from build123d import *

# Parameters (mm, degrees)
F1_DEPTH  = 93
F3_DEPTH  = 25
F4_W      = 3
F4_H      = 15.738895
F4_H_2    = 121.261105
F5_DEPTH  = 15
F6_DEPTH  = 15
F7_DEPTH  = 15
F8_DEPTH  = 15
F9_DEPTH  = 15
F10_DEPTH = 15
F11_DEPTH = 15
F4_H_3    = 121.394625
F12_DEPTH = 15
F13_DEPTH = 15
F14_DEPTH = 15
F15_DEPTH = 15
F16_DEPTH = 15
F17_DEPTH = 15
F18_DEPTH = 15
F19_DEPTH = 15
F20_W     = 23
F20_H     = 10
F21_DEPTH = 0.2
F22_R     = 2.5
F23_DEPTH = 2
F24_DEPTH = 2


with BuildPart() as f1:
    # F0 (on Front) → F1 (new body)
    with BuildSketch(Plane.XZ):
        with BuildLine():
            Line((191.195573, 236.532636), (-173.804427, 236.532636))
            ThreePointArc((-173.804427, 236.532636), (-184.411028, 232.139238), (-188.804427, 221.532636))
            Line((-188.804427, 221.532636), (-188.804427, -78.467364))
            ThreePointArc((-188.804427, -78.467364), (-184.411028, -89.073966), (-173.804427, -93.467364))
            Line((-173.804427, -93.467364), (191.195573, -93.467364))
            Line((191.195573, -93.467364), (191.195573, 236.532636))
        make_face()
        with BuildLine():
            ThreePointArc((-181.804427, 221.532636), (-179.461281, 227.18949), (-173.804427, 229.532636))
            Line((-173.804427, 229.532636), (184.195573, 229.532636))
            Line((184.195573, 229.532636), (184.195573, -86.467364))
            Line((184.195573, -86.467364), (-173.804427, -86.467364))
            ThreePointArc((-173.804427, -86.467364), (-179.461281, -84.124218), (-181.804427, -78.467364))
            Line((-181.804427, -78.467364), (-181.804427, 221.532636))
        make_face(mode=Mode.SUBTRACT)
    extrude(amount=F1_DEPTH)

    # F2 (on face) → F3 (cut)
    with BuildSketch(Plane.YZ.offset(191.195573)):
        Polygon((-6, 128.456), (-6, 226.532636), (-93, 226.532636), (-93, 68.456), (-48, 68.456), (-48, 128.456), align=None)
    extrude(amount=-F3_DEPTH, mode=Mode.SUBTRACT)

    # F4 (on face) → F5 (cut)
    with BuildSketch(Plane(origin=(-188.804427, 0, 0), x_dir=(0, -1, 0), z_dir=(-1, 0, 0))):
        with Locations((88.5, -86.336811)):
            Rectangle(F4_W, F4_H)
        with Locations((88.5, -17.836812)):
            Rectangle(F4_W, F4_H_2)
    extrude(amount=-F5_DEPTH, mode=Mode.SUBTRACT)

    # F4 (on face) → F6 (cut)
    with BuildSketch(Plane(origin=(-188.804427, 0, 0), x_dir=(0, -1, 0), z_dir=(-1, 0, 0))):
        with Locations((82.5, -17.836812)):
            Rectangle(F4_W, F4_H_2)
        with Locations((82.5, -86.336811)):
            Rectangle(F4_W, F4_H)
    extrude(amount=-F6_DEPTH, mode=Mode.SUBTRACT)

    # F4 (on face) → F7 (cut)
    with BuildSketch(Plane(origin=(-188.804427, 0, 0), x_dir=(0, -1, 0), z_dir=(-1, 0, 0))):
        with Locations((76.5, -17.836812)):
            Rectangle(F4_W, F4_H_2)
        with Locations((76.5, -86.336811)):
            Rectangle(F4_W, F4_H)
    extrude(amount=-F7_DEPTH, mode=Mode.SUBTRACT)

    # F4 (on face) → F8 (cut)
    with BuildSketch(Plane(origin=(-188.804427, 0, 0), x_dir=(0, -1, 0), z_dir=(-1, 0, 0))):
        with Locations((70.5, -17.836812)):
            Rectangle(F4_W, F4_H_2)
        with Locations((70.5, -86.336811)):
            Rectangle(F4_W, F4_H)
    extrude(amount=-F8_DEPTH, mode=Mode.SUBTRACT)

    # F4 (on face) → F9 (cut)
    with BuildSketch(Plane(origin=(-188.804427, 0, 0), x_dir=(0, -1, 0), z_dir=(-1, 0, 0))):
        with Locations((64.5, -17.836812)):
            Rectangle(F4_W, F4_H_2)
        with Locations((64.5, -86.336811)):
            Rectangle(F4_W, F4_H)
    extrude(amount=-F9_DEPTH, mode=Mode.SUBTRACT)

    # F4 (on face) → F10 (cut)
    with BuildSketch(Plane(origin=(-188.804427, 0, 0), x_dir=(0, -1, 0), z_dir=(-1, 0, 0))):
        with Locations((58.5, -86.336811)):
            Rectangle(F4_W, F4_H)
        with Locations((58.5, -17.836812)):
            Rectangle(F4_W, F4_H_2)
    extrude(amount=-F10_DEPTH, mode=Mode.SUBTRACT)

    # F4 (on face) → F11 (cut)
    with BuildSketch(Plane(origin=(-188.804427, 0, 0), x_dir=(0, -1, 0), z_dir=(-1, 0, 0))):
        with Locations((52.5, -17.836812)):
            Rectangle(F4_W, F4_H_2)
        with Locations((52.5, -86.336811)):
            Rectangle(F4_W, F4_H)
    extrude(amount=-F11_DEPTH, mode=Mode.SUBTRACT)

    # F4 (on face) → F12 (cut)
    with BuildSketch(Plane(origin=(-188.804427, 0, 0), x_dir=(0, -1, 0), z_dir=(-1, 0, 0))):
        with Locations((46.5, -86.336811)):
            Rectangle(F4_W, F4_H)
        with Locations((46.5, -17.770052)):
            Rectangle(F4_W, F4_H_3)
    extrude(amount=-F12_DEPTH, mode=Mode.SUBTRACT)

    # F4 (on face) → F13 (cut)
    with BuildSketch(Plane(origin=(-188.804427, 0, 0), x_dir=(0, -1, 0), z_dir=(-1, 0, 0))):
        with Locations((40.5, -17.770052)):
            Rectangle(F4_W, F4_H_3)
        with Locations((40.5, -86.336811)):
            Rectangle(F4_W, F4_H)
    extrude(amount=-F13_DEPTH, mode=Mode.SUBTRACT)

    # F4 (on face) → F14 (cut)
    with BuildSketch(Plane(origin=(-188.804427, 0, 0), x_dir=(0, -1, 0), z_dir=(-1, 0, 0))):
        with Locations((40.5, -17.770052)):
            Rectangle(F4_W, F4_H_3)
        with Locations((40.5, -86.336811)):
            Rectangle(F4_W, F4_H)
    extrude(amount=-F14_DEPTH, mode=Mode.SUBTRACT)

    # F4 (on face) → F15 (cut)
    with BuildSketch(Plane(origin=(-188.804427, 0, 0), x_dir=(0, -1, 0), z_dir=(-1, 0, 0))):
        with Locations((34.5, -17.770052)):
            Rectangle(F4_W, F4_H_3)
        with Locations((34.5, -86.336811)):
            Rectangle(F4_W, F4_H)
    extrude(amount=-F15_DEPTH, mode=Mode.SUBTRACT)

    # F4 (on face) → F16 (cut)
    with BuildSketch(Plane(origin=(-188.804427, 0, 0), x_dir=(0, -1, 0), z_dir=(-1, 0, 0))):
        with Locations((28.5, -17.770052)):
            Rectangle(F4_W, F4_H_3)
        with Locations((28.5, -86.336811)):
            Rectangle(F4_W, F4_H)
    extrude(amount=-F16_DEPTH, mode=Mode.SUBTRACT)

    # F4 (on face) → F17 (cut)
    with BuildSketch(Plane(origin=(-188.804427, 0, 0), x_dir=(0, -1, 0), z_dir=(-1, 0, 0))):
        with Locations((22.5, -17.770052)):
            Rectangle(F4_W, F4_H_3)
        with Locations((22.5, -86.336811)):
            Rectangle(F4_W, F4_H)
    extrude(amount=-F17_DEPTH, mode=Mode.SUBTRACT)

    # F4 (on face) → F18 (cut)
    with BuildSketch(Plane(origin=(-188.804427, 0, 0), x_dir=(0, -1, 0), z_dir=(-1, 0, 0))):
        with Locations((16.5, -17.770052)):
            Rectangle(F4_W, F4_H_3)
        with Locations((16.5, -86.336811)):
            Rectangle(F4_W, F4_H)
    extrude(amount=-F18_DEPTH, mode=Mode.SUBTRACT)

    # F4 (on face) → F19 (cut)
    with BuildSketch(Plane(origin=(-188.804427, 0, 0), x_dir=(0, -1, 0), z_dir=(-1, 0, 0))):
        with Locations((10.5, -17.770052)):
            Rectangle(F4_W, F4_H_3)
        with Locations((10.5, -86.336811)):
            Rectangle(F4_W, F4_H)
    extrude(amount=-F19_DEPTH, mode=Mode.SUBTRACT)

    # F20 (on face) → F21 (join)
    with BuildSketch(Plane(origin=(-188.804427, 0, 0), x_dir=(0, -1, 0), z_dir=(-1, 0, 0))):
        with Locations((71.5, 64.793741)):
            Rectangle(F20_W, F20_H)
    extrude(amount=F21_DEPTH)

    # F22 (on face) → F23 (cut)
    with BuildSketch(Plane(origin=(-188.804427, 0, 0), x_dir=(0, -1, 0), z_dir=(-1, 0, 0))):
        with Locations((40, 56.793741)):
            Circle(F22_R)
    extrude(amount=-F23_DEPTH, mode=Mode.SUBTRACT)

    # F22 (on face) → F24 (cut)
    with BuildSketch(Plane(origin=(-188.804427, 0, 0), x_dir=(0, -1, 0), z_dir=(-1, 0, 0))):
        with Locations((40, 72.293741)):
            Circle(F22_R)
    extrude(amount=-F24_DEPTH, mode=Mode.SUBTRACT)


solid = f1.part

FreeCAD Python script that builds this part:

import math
import FreeCAD as App
import Part
import Sketcher
from FreeCAD import Vector

doc = App.newDocument("Part")
body = doc.addObject("PartDesign::Body", "Body")

sketch1 = body.newObject("Sketcher::SketchObject", "Sketch")
sketch1.AttachmentSupport = (doc.getObject("XZ_Plane"), [""])
sketch1.MapMode = "FlatFace"
sketch1.addGeometry(Part.LineSegment(Vector(191, 237, 0), Vector(-174, 237, 0)), False)
sketch1.addGeometry(Part.ArcOfCircle(Part.Circle(Vector(-174, 222, 0), Vector(0, 0, 1), 15), math.radians(90), math.radians(180)), False)
sketch1.addGeometry(Part.LineSegment(Vector(-189, 222, 0), Vector(-189, -78, 0)), False)
sketch1.addGeometry(Part.ArcOfCircle(Part.Circle(Vector(-174, -78, 0), Vector(0, 0, 1), 15), math.radians(-180), math.radians(-90)), False)
sketch1.addGeometry(Part.LineSegment(Vector(-174, -93, 0), Vector(191, -93, 0)), False)
sketch1.addGeometry(Part.LineSegment(Vector(191, -93, 0), Vector(191, 237, 0)), False)
sketch1.addGeometry(Part.LineSegment(Vector(-182, -78, 0), Vector(-182, 222, 0)), False)
sketch1.addGeometry(Part.ArcOfCircle(Part.Circle(Vector(-174, 222, 0), Vector(0, 0, 1), 8), math.radians(90), math.radians(180)), False)
sketch1.addGeometry(Part.LineSegment(Vector(-174, 230, 0), Vector(184, 230, 0)), False)
sketch1.addGeometry(Part.LineSegment(Vector(184, 230, 0), Vector(184, -86, 0)), False)
sketch1.addGeometry(Part.LineSegment(Vector(184, -86, 0), Vector(-174, -86, 0)), False)
sketch1.addGeometry(Part.ArcOfCircle(Part.Circle(Vector(-174, -78, 0), Vector(0, 0, 1), 8), math.radians(-180), math.radians(-90)), False)
sketch1.addConstraint(Sketcher.Constraint("Tangent", 0, 2, 1, 1))
sketch1.addConstraint(Sketcher.Constraint("Tangent", 1, 2, 2, 1))
sketch1.addConstraint(Sketcher.Constraint("Tangent", 2, 2, 3, 1))
sketch1.addConstraint(Sketcher.Constraint("Tangent", 3, 2, 4, 1))
sketch1.addConstraint(Sketcher.Constraint("Coincident", 4, 2, 5, 1))
sketch1.addConstraint(Sketcher.Constraint("Coincident", 5, 2, 0, 1))
sketch1.addConstraint(Sketcher.Constraint("Tangent", 6, 2, 7, 2))
sketch1.addConstraint(Sketcher.Constraint("Tangent", 7, 1, 8, 1))
sketch1.addConstraint(Sketcher.Constraint("Coincident", 8, 2, 9, 1))
sketch1.addConstraint(Sketcher.Constraint("Coincident", 9, 2, 10, 1))
sketch1.addConstraint(Sketcher.Constraint("Tangent", 10, 2, 11, 2))
sketch1.addConstraint(Sketcher.Constraint("Tangent", 11, 1, 6, 1))
sketch1.addConstraint(Sketcher.Constraint("Horizontal", 0))
sketch1.addConstraint(Sketcher.Constraint("Vertical", 2))
sketch1.addConstraint(Sketcher.Constraint("Horizontal", 4))
sketch1.addConstraint(Sketcher.Constraint("Vertical", 5))
sketch1.addConstraint(Sketcher.Constraint("Vertical", 6))
sketch1.addConstraint(Sketcher.Constraint("Horizontal", 8))
sketch1.addConstraint(Sketcher.Constraint("Vertical", 9))
sketch1.addConstraint(Sketcher.Constraint("Horizontal", 10))
sketch1.addConstraint(Sketcher.Constraint("Coincident", 7, 3, 1, 3))
sketch1.addConstraint(Sketcher.Constraint("Coincident", 11, 3, 3, 3))
sketch1.addConstraint(Sketcher.Constraint("Equal", 1, 3))
sketch1.addConstraint(Sketcher.Constraint("Radius", 1, 15.000001))
sketch1.addConstraint(Sketcher.Constraint("Radius", 7, 8.000001))
sketch1.addConstraint(Sketcher.Constraint("DistanceX", 0, 2, 0, 1, 365.0))
sketch1.addConstraint(Sketcher.Constraint("DistanceX", 8, 1, 8, 2, 358.0))
sketch1.addConstraint(Sketcher.Constraint("DistanceY", 2, 2, 2, 1, 300.0))
sketch1.addConstraint(Sketcher.Constraint("DistanceX", 1, 3, -1, 1, 173.804426))
sketch1.addConstraint(Sketcher.Constraint("DistanceY", -1, 1, 1, 3, 221.532635))
pad1 = body.newObject("PartDesign::Pad", "Pad")
pad1.Profile = sketch1
pad1.Length = 93

sketch2 = body.newObject("Sketcher::SketchObject", "Sketch001")
sketch2.AttachmentSupport = (doc.getObject("YZ_Plane"), [""])
sketch2.MapMode = "FlatFace"
sketch2.AttachmentOffset = App.Placement(Vector(0, 0, 191.195573), App.Rotation())
sketch2.addGeometry(Part.LineSegment(Vector(-6, 128, 0), Vector(-6, 227, 0)), False)
sketch2.addGeometry(Part.LineSegment(Vector(-6, 227, 0), Vector(-93, 227, 0)), False)
sketch2.addGeometry(Part.LineSegment(Vector(-93, 227, 0), Vector(-93, 68, 0)), False)
sketch2.addGeometry(Part.LineSegment(Vector(-93, 68, 0), Vector(-48, 68, 0)), False)
sketch2.addGeometry(Part.LineSegment(Vector(-48, 68, 0), Vector(-48, 128, 0)), False)
sketch2.addGeometry(Part.LineSegment(Vector(-48, 128, 0), Vector(-6, 128, 0)), False)
sketch2.addConstraint(Sketcher.Constraint("Coincident", 0, 2, 1, 1))
sketch2.addConstraint(Sketcher.Constraint("Coincident", 1, 2, 2, 1))
sketch2.addConstraint(Sketcher.Constraint("Coincident", 2, 2, 3, 1))
sketch2.addConstraint(Sketcher.Constraint("Coincident", 3, 2, 4, 1))
sketch2.addConstraint(Sketcher.Constraint("Coincident", 4, 2, 5, 1))
sketch2.addConstraint(Sketcher.Constraint("Coincident", 5, 2, 0, 1))
sketch2.addConstraint(Sketcher.Constraint("Vertical", 0))
sketch2.addConstraint(Sketcher.Constraint("Horizontal", 1))
sketch2.addConstraint(Sketcher.Constraint("Vertical", 2))
sketch2.addConstraint(Sketcher.Constraint("Horizontal", 3))
sketch2.addConstraint(Sketcher.Constraint("Vertical", 4))
sketch2.addConstraint(Sketcher.Constraint("Horizontal", 5))
sketch2.addConstraint(Sketcher.Constraint("DistanceX", 1, 2, 1, 1, 87.0))
sketch2.addConstraint(Sketcher.Constraint("DistanceX", 3, 1, 3, 2, 45.0))
sketch2.addConstraint(Sketcher.Constraint("DistanceY", 4, 1, 4, 2, 60.0))
sketch2.addConstraint(Sketcher.Constraint("DistanceX", 0, 2, -1, 1, 6.0))
sketch2.addConstraint(Sketcher.Constraint("DistanceY", -1, 1, 2, 2, 68.456))
sketch2.addConstraint(Sketcher.Constraint("DistanceY", 0, 1, 0, 2, 98.076636))
pocket1 = body.newObject("PartDesign::Pocket", "Pocket")
pocket1.Profile = sketch2
pocket1.Length = 25

sketch3 = body.newObject("Sketcher::SketchObject", "Sketch002")
sketch3.AttachmentSupport = (doc.getObject("YZ_Plane"), [""])
sketch3.MapMode = "FlatFace"
sketch3.AttachmentOffset = App.Placement(Vector(0, 0, -188.804427), App.Rotation())
sketch3.addGeometry(Part.LineSegment(Vector(-87, -94.2, 0), Vector(-90, -94.2, 0)), False)
sketch3.addGeometry(Part.LineSegment(Vector(-90, -94.2, 0), Vector(-90, 42.8, 0)), False)
sketch3.addGeometry(Part.LineSegment(Vector(-90, 42.8, 0), Vector(-87, 42.8, 0)), False)
sketch3.addGeometry(Part.LineSegment(Vector(-87, 42.8, 0), Vector(-87, -94.2, 0)), False)
sketch3.addConstraint(Sketcher.Constraint("Coincident", 0, 2, 1, 1))
sketch3.addConstraint(Sketcher.Constraint("Coincident", 1, 2, 2, 1))
sketch3.addConstraint(Sketcher.Constraint("Coincident", 2, 2, 3, 1))
sketch3.addConstraint(Sketcher.Constraint("Coincident", 3, 2, 0, 1))
sketch3.addConstraint(Sketcher.Constraint("Horizontal", 0))
sketch3.addConstraint(Sketcher.Constraint("Vertical", 1))
sketch3.addConstraint(Sketcher.Constraint("Horizontal", 2))
sketch3.addConstraint(Sketcher.Constraint("Vertical", 3))
sketch3.addConstraint(Sketcher.Constraint("DistanceX", 0, 2, 0, 1, 3.0))
sketch3.addConstraint(Sketcher.Constraint("DistanceY", 1, 1, 1, 2, 136.999999))
sketch3.addConstraint(Sketcher.Constraint("DistanceX", 0, 2, -1, 1, 90.0))
sketch3.addConstraint(Sketcher.Constraint("DistanceY", 0, 2, -1, 1, 94.206259))
pocket2 = body.newObject("PartDesign::Pocket", "Pocket001")
pocket2.Profile = sketch3
pocket2.Length = 15
pocket2.Reversed = True

sketch4 = body.newObject("Sketcher::SketchObject", "Sketch003")
sketch4.AttachmentSupport = (doc.getObject("YZ_Plane"), [""])
sketch4.MapMode = "FlatFace"
sketch4.AttachmentOffset = App.Placement(Vector(0, 0, -188.804427), App.Rotation())
sketch4.addGeometry(Part.LineSegment(Vector(-81, -94.2, 0), Vector(-84, -94.2, 0)), False)
sketch4.addGeometry(Part.LineSegment(Vector(-84, -94.2, 0), Vector(-84, 42.8, 0)), False)
sketch4.addGeometry(Part.LineSegment(Vector(-84, 42.8, 0), Vector(-81, 42.8, 0)), False)
sketch4.addGeometry(Part.LineSegment(Vector(-81, 42.8, 0), Vector(-81, -94.2, 0)), False)
sketch4.addConstraint(Sketcher.Constraint("Coincident", 0, 2, 1, 1))
sketch4.addConstraint(Sketcher.Constraint("Coincident", 1, 2, 2, 1))
sketch4.addConstraint(Sketcher.Constraint("Coincident", 2, 2, 3, 1))
sketch4.addConstraint(Sketcher.Constraint("Coincident", 3, 2, 0, 1))
sketch4.addConstraint(Sketcher.Constraint("Horizontal", 0))
sketch4.addConstraint(Sketcher.Constraint("Vertical", 1))
sketch4.addConstraint(Sketcher.Constraint("Horizontal", 2))
sketch4.addConstraint(Sketcher.Constraint("Vertical", 3))
sketch4.addConstraint(Sketcher.Constraint("DistanceX", 0, 2, 0, 1, 3.0))
sketch4.addConstraint(Sketcher.Constraint("DistanceY", 1, 1, 1, 2, 136.999999))
sketch4.addConstraint(Sketcher.Constraint("DistanceX", 0, 2, -1, 1, 84.0))
sketch4.addConstraint(Sketcher.Constraint("DistanceY", 0, 2, -1, 1, 94.206259))
pocket3 = body.newObject("PartDesign::Pocket", "Pocket002")
pocket3.Profile = sketch4
pocket3.Length = 15
pocket3.Reversed = True

sketch5 = body.newObject("Sketcher::SketchObject", "Sketch004")
sketch5.AttachmentSupport = (doc.getObject("YZ_Plane"), [""])
sketch5.MapMode = "FlatFace"
sketch5.AttachmentOffset = App.Placement(Vector(0, 0, -188.804427), App.Rotation())
sketch5.addGeometry(Part.LineSegment(Vector(-75, -94.2, 0), Vector(-78, -94.2, 0)), False)
sketch5.addGeometry(Part.LineSegment(Vector(-78, -94.2, 0), Vector(-78, 42.8, 0)), False)
sketch5.addGeometry(Part.LineSegment(Vector(-78, 42.8, 0), Vector(-75, 42.8, 0)), False)
sketch5.addGeometry(Part.LineSegment(Vector(-75, 42.8, 0), Vector(-75, -94.2, 0)), False)
sketch5.addConstraint(Sketcher.Constraint("Coincident", 0, 2, 1, 1))
sketch5.addConstraint(Sketcher.Constraint("Coincident", 1, 2, 2, 1))
sketch5.addConstraint(Sketcher.Constraint("Coincident", 2, 2, 3, 1))
sketch5.addConstraint(Sketcher.Constraint("Coincident", 3, 2, 0, 1))
sketch5.addConstraint(Sketcher.Constraint("Horizontal", 0))
sketch5.addConstraint(Sketcher.Constraint("Vertical", 1))
sketch5.addConstraint(Sketcher.Constraint("Horizontal", 2))
sketch5.addConstraint(Sketcher.Constraint("Vertical", 3))
sketch5.addConstraint(Sketcher.Constraint("DistanceX", 0, 2, 0, 1, 3.0))
sketch5.addConstraint(Sketcher.Constraint("DistanceY", 1, 1, 1, 2, 136.999999))
sketch5.addConstraint(Sketcher.Constraint("DistanceX", 0, 2, -1, 1, 78.0))
sketch5.addConstraint(Sketcher.Constraint("DistanceY", 0, 2, -1, 1, 94.206259))
pocket4 = body.newObject("PartDesign::Pocket", "Pocket003")
pocket4.Profile = sketch5
pocket4.Length = 15
pocket4.Reversed = True

sketch6 = body.newObject("Sketcher::SketchObject", "Sketch005")
sketch6.AttachmentSupport = (doc.getObject("YZ_Plane"), [""])
sketch6.MapMode = "FlatFace"
sketch6.AttachmentOffset = App.Placement(Vector(0, 0, -188.804427), App.Rotation())
sketch6.addGeometry(Part.LineSegment(Vector(-69, -94.2, 0), Vector(-72, -94.2, 0)), False)
sketch6.addGeometry(Part.LineSegment(Vector(-72, -94.2, 0), Vector(-72, 42.8, 0)), False)
sketch6.addGeometry(Part.LineSegment(Vector(-72, 42.8, 0), Vector(-69, 42.8, 0)), False)
sketch6.addGeometry(Part.LineSegment(Vector(-69, 42.8, 0), Vector(-69, -94.2, 0)), False)
sketch6.addConstraint(Sketcher.Constraint("Coincident", 0, 2, 1, 1))
sketch6.addConstraint(Sketcher.Constraint("Coincident", 1, 2, 2, 1))
sketch6.addConstraint(Sketcher.Constraint("Coincident", 2, 2, 3, 1))
sketch6.addConstraint(Sketcher.Constraint("Coincident", 3, 2, 0, 1))
sketch6.addConstraint(Sketcher.Constraint("Horizontal", 0))
sketch6.addConstraint(Sketcher.Constraint("Vertical", 1))
sketch6.addConstraint(Sketcher.Constraint("Horizontal", 2))
sketch6.addConstraint(Sketcher.Constraint("Vertical", 3))
sketch6.addConstraint(Sketcher.Constraint("DistanceX", 0, 2, 0, 1, 3.0))
sketch6.addConstraint(Sketcher.Constraint("DistanceY", 1, 1, 1, 2, 136.999999))
sketch6.addConstraint(Sketcher.Constraint("DistanceX", 0, 2, -1, 1, 72.0))
sketch6.addConstraint(Sketcher.Constraint("DistanceY", 0, 2, -1, 1, 94.206259))
pocket5 = body.newObject("PartDesign::Pocket", "Pocket004")
pocket5.Profile = sketch6
pocket5.Length = 15
pocket5.Reversed = True

sketch7 = body.newObject("Sketcher::SketchObject", "Sketch006")
sketch7.AttachmentSupport = (doc.getObject("YZ_Plane"), [""])
sketch7.MapMode = "FlatFace"
sketch7.AttachmentOffset = App.Placement(Vector(0, 0, -188.804427), App.Rotation())
sketch7.addGeometry(Part.LineSegment(Vector(-63, -94.2, 0), Vector(-66, -94.2, 0)), False)
sketch7.addGeometry(Part.LineSegment(Vector(-66, -94.2, 0), Vector(-66, 42.8, 0)), False)
sketch7.addGeometry(Part.LineSegment(Vector(-66, 42.8, 0), Vector(-63, 42.8, 0)), False)
sketch7.addGeometry(Part.LineSegment(Vector(-63, 42.8, 0), Vector(-63, -94.2, 0)), False)
sketch7.addConstraint(Sketcher.Constraint("Coincident", 0, 2, 1, 1))
sketch7.addConstraint(Sketcher.Constraint("Coincident", 1, 2, 2, 1))
sketch7.addConstraint(Sketcher.Constraint("Coincident", 2, 2, 3, 1))
sketch7.addConstraint(Sketcher.Constraint("Coincident", 3, 2, 0, 1))
sketch7.addConstraint(Sketcher.Constraint("Horizontal", 0))
sketch7.addConstraint(Sketcher.Constraint("Vertical", 1))
sketch7.addConstraint(Sketcher.Constraint("Horizontal", 2))
sketch7.addConstraint(Sketcher.Constraint("Vertical", 3))
sketch7.addConstraint(Sketcher.Constraint("DistanceX", 0, 2, 0, 1, 3.0))
sketch7.addConstraint(Sketcher.Constraint("DistanceY", 1, 1, 1, 2, 136.999999))
sketch7.addConstraint(Sketcher.Constraint("DistanceX", 0, 2, -1, 1, 66.0))
sketch7.addConstraint(Sketcher.Constraint("DistanceY", 0, 2, -1, 1, 94.206259))
pocket6 = body.newObject("PartDesign::Pocket", "Pocket005")
pocket6.Profile = sketch7
pocket6.Length = 15
pocket6.Reversed = True

sketch8 = body.newObject("Sketcher::SketchObject", "Sketch007")
sketch8.AttachmentSupport = (doc.getObject("YZ_Plane"), [""])
sketch8.MapMode = "FlatFace"
sketch8.AttachmentOffset = App.Placement(Vector(0, 0, -188.804427), App.Rotation())
sketch8.addGeometry(Part.LineSegment(Vector(-57, -94.2, 0), Vector(-60, -94.2, 0)), False)
sketch8.addGeometry(Part.LineSegment(Vector(-60, -94.2, 0), Vector(-60, 42.8, 0)), False)
sketch8.addGeometry(Part.LineSegment(Vector(-60, 42.8, 0), Vector(-57, 42.8, 0)), False)
sketch8.addGeometry(Part.LineSegment(Vector(-57, 42.8, 0), Vector(-57, -94.2, 0)), False)
sketch8.addConstraint(Sketcher.Constraint("Coincident", 0, 2, 1, 1))
sketch8.addConstraint(Sketcher.Constraint("Coincident", 1, 2, 2, 1))
sketch8.addConstraint(Sketcher.Constraint("Coincident", 2, 2, 3, 1))
sketch8.addConstraint(Sketcher.Constraint("Coincident", 3, 2, 0, 1))
sketch8.addConstraint(Sketcher.Constraint("Horizontal", 0))
sketch8.addConstraint(Sketcher.Constraint("Vertical", 1))
sketch8.addConstraint(Sketcher.Constraint("Horizontal", 2))
sketch8.addConstraint(Sketcher.Constraint("Vertical", 3))
sketch8.addConstraint(Sketcher.Constraint("DistanceX", 0, 2, 0, 1, 3.0))
sketch8.addConstraint(Sketcher.Constraint("DistanceY", 1, 1, 1, 2, 136.999999))
sketch8.addConstraint(Sketcher.Constraint("DistanceX", 0, 2, -1, 1, 60.0))
sketch8.addConstraint(Sketcher.Constraint("DistanceY", 0, 2, -1, 1, 94.206259))
pocket7 = body.newObject("PartDesign::Pocket", "Pocket006")
pocket7.Profile = sketch8
pocket7.Length = 15
pocket7.Reversed = True

sketch9 = body.newObject("Sketcher::SketchObject", "Sketch008")
sketch9.AttachmentSupport = (doc.getObject("YZ_Plane"), [""])
sketch9.MapMode = "FlatFace"
sketch9.AttachmentOffset = App.Placement(Vector(0, 0, -188.804427), App.Rotation())
sketch9.addGeometry(Part.LineSegment(Vector(-51, -94.2, 0), Vector(-54, -94.2, 0)), False)
sketch9.addGeometry(Part.LineSegment(Vector(-54, -94.2, 0), Vector(-54, 42.8, 0)), False)
sketch9.addGeometry(Part.LineSegment(Vector(-54, 42.8, 0), Vector(-51, 42.8, 0)), False)
sketch9.addGeometry(Part.LineSegment(Vector(-51, 42.8, 0), Vector(-51, -94.2, 0)), False)
sketch9.addConstraint(Sketcher.Constraint("Coincident", 0, 2, 1, 1))
sketch9.addConstraint(Sketcher.Constraint("Coincident", 1, 2, 2, 1))
sketch9.addConstraint(Sketcher.Constraint("Coincident", 2, 2, 3, 1))
sketch9.addConstraint(Sketcher.Constraint("Coincident", 3, 2, 0, 1))
sketch9.addConstraint(Sketcher.Constraint("Horizontal", 0))
sketch9.addConstraint(Sketcher.Constraint("Vertical", 1))
sketch9.addConstraint(Sketcher.Constraint("Horizontal", 2))
sketch9.addConstraint(Sketcher.Constraint("Vertical", 3))
sketch9.addConstraint(Sketcher.Constraint("DistanceX", 0, 2, 0, 1, 3.0))
sketch9.addConstraint(Sketcher.Constraint("DistanceY", 1, 1, 1, 2, 136.999999))
sketch9.addConstraint(Sketcher.Constraint("DistanceX", 0, 2, -1, 1, 54.0))
sketch9.addConstraint(Sketcher.Constraint("DistanceY", 0, 2, -1, 1, 94.206259))
pocket8 = body.newObject("PartDesign::Pocket", "Pocket007")
pocket8.Profile = sketch9
pocket8.Length = 15
pocket8.Reversed = True

sketch10 = body.newObject("Sketcher::SketchObject", "Sketch009")
sketch10.AttachmentSupport = (doc.getObject("YZ_Plane"), [""])
sketch10.MapMode = "FlatFace"
sketch10.AttachmentOffset = App.Placement(Vector(0, 0, -188.804427), App.Rotation())
sketch10.addGeometry(Part.LineSegment(Vector(-45, -94.2, 0), Vector(-48, -94.2, 0)), False)
sketch10.addGeometry(Part.LineSegment(Vector(-48, -94.2, 0), Vector(-48, 42.9, 0)), False)
sketch10.addGeometry(Part.LineSegment(Vector(-48, 42.9, 0), Vector(-45, 42.9, 0)), False)
sketch10.addGeometry(Part.LineSegment(Vector(-45, 42.9, 0), Vector(-45, -94.2, 0)), False)
sketch10.addConstraint(Sketcher.Constraint("Coincident", 0, 2, 1, 1))
sketch10.addConstraint(Sketcher.Constraint("Coincident", 1, 2, 2, 1))
sketch10.addConstraint(Sketcher.Constraint("Coincident", 2, 2, 3, 1))
sketch10.addConstraint(Sketcher.Constraint("Coincident", 3, 2, 0, 1))
sketch10.addConstraint(Sketcher.Constraint("Horizontal", 0))
sketch10.addConstraint(Sketcher.Constraint("Vertical", 1))
sketch10.addConstraint(Sketcher.Constraint("Horizontal", 2))
sketch10.addConstraint(Sketcher.Constraint("Vertical", 3))
sketch10.addConstraint(Sketcher.Constraint("DistanceX", 0, 2, 0, 1, 3.0))
sketch10.addConstraint(Sketcher.Constraint("DistanceX", 0, 2, -1, 1, 48.0))
sketch10.addConstraint(Sketcher.Constraint("DistanceY", 1, 1, 1, 2, 137.133519))
sketch10.addConstraint(Sketcher.Constraint("DistanceY", 0, 2, -1, 1, 94.206259))
pocket9 = body.newObject("PartDesign::Pocket", "Pocket008")
pocket9.Profile = sketch10
pocket9.Length = 15
pocket9.Reversed = True

sketch11 = body.newObject("Sketcher::SketchObject", "Sketch010")
sketch11.AttachmentSupport = (doc.getObject("YZ_Plane"), [""])
sketch11.MapMode = "FlatFace"
sketch11.AttachmentOffset = App.Placement(Vector(0, 0, -188.804427), App.Rotation())
sketch11.addGeometry(Part.LineSegment(Vector(-39, -94.2, 0), Vector(-42, -94.2, 0)), False)
sketch11.addGeometry(Part.LineSegment(Vector(-42, -94.2, 0), Vector(-42, 42.9, 0)), False)
sketch11.addGeometry(Part.LineSegment(Vector(-42, 42.9, 0), Vector(-39, 42.9, 0)), False)
sketch11.addGeometry(Part.LineSegment(Vector(-39, 42.9, 0), Vector(-39, -94.2, 0)), False)
sketch11.addConstraint(Sketcher.Constraint("Coincident", 0, 2, 1, 1))
sketch11.addConstraint(Sketcher.Constraint("Coincident", 1, 2, 2, 1))
sketch11.addConstraint(Sketcher.Constraint("Coincident", 2, 2, 3, 1))
sketch11.addConstraint(Sketcher.Constraint("Coincident", 3, 2, 0, 1))
sketch11.addConstraint(Sketcher.Constraint("Horizontal", 0))
sketch11.addConstraint(Sketcher.Constraint("Vertical", 1))
sketch11.addConstraint(Sketcher.Constraint("Horizontal", 2))
sketch11.addConstraint(Sketcher.Constraint("Vertical", 3))
sketch11.addConstraint(Sketcher.Constraint("DistanceX", 0, 2, 0, 1, 3.0))
sketch11.addConstraint(Sketcher.Constraint("DistanceX", 0, 2, -1, 1, 42.0))
sketch11.addConstraint(Sketcher.Constraint("DistanceY", 1, 1, 1, 2, 137.133519))
sketch11.addConstraint(Sketcher.Constraint("DistanceY", 0, 2, -1, 1, 94.206259))
pocket10 = body.newObject("PartDesign::Pocket", "Pocket009")
pocket10.Profile = sketch11
pocket10.Length = 15
pocket10.Reversed = True

sketch12 = body.newObject("Sketcher::SketchObject", "Sketch011")
sketch12.AttachmentSupport = (doc.getObject("YZ_Plane"), [""])
sketch12.MapMode = "FlatFace"
sketch12.AttachmentOffset = App.Placement(Vector(0, 0, -188.804427), App.Rotation())
sketch12.addGeometry(Part.LineSegment(Vector(-39, -94.2, 0), Vector(-42, -94.2, 0)), False)
sketch12.addGeometry(Part.LineSegment(Vector(-42, -94.2, 0), Vector(-42, 42.9, 0)), False)
sketch12.addGeometry(Part.LineSegment(Vector(-42, 42.9, 0), Vector(-39, 42.9, 0)), False)
sketch12.addGeometry(Part.LineSegment(Vector(-39, 42.9, 0), Vector(-39, -94.2, 0)), False)
sketch12.addConstraint(Sketcher.Constraint("Coincident", 0, 2, 1, 1))
sketch12.addConstraint(Sketcher.Constraint("Coincident", 1, 2, 2, 1))
sketch12.addConstraint(Sketcher.Constraint("Coincident", 2, 2, 3, 1))
sketch12.addConstraint(Sketcher.Constraint("Coincident", 3, 2, 0, 1))
sketch12.addConstraint(Sketcher.Constraint("Horizontal", 0))
sketch12.addConstraint(Sketcher.Constraint("Vertical", 1))
sketch12.addConstraint(Sketcher.Constraint("Horizontal", 2))
sketch12.addConstraint(Sketcher.Constraint("Vertical", 3))
sketch12.addConstraint(Sketcher.Constraint("DistanceX", 0, 2, 0, 1, 3.0))
sketch12.addConstraint(Sketcher.Constraint("DistanceX", 0, 2, -1, 1, 42.0))
sketch12.addConstraint(Sketcher.Constraint("DistanceY", 1, 1, 1, 2, 137.133519))
sketch12.addConstraint(Sketcher.Constraint("DistanceY", 0, 2, -1, 1, 94.206259))
pocket11 = body.newObject("PartDesign::Pocket", "Pocket010")
pocket11.Profile = sketch12
pocket11.Length = 15
pocket11.Reversed = True

sketch13 = body.newObject("Sketcher::SketchObject", "Sketch012")
sketch13.AttachmentSupport = (doc.getObject("YZ_Plane"), [""])
sketch13.MapMode = "FlatFace"
sketch13.AttachmentOffset = App.Placement(Vector(0, 0, -188.804427), App.Rotation())
sketch13.addGeometry(Part.LineSegment(Vector(-33, -94.2, 0), Vector(-36, -94.2, 0)), False)
sketch13.addGeometry(Part.LineSegment(Vector(-36, -94.2, 0), Vector(-36, 42.9, 0)), False)
sketch13.addGeometry(Part.LineSegment(Vector(-36, 42.9, 0), Vector(-33, 42.9, 0)), False)
sketch13.addGeometry(Part.LineSegment(Vector(-33, 42.9, 0), Vector(-33, -94.2, 0)), False)
sketch13.addConstraint(Sketcher.Constraint("Coincident", 0, 2, 1, 1))
sketch13.addConstraint(Sketcher.Constraint("Coincident", 1, 2, 2, 1))
sketch13.addConstraint(Sketcher.Constraint("Coincident", 2, 2, 3, 1))
sketch13.addConstraint(Sketcher.Constraint("Coincident", 3, 2, 0, 1))
sketch13.addConstraint(Sketcher.Constraint("Horizontal", 0))
sketch13.addConstraint(Sketcher.Constraint("Vertical", 1))
sketch13.addConstraint(Sketcher.Constraint("Horizontal", 2))
sketch13.addConstraint(Sketcher.Constraint("Vertical", 3))
sketch13.addConstraint(Sketcher.Constraint("DistanceX", 0, 2, 0, 1, 3.0))
sketch13.addConstraint(Sketcher.Constraint("DistanceX", 0, 2, -1, 1, 36.0))
sketch13.addConstraint(Sketcher.Constraint("DistanceY", 1, 1, 1, 2, 137.133519))
sketch13.addConstraint(Sketcher.Constraint("DistanceY", 0, 2, -1, 1, 94.206259))
pocket12 = body.newObject("PartDesign::Pocket", "Pocket011")
pocket12.Profile = sketch13
pocket12.Length = 15
pocket12.Reversed = True

sketch14 = body.newObject("Sketcher::SketchObject", "Sketch013")
sketch14.AttachmentSupport = (doc.getObject("YZ_Plane"), [""])
sketch14.MapMode = "FlatFace"
sketch14.AttachmentOffset = App.Placement(Vector(0, 0, -188.804427), App.Rotation())
sketch14.addGeometry(Part.LineSegment(Vector(-27, -94.2, 0), Vector(-30, -94.2, 0)), False)
sketch14.addGeometry(Part.LineSegment(Vector(-30, -94.2, 0), Vector(-30, 42.9, 0)), False)
sketch14.addGeometry(Part.LineSegment(Vector(-30, 42.9, 0), Vector(-27, 42.9, 0)), False)
sketch14.addGeometry(Part.LineSegment(Vector(-27, 42.9, 0), Vector(-27, -94.2, 0)), False)
sketch14.addConstraint(Sketcher.Constraint("Coincident", 0, 2, 1, 1))
sketch14.addConstraint(Sketcher.Constraint("Coincident", 1, 2, 2, 1))
sketch14.addConstraint(Sketcher.Constraint("Coincident", 2, 2, 3, 1))
sketch14.addConstraint(Sketcher.Constraint("Coincident", 3, 2, 0, 1))
sketch14.addConstraint(Sketcher.Constraint("Horizontal", 0))
sketch14.addConstraint(Sketcher.Constraint("Vertical", 1))
sketch14.addConstraint(Sketcher.Constraint("Horizontal", 2))
sketch14.addConstraint(Sketcher.Constraint("Vertical", 3))
sketch14.addConstraint(Sketcher.Constraint("DistanceX", 0, 2, 0, 1, 3.0))
sketch14.addConstraint(Sketcher.Constraint("DistanceX", 0, 2, -1, 1, 30.0))
sketch14.addConstraint(Sketcher.Constraint("DistanceY", 1, 1, 1, 2, 137.133519))
sketch14.addConstraint(Sketcher.Constraint("DistanceY", 0, 2, -1, 1, 94.206259))
pocket13 = body.newObject("PartDesign::Pocket", "Pocket012")
pocket13.Profile = sketch14
pocket13.Length = 15
pocket13.Reversed = True

sketch15 = body.newObject("Sketcher::SketchObject", "Sketch014")
sketch15.AttachmentSupport = (doc.getObject("YZ_Plane"), [""])
sketch15.MapMode = "FlatFace"
sketch15.AttachmentOffset = App.Placement(Vector(0, 0, -188.804427), App.Rotation())
sketch15.addGeometry(Part.LineSegment(Vector(-21, -94.2, 0), Vector(-24, -94.2, 0)), False)
sketch15.addGeometry(Part.LineSegment(Vector(-24, -94.2, 0), Vector(-24, 42.9, 0)), False)
sketch15.addGeometry(Part.LineSegment(Vector(-24, 42.9, 0), Vector(-21, 42.9, 0)), False)
sketch15.addGeometry(Part.LineSegment(Vector(-21, 42.9, 0), Vector(-21, -94.2, 0)), False)
sketch15.addConstraint(Sketcher.Constraint("Coincident", 0, 2, 1, 1))
sketch15.addConstraint(Sketcher.Constraint("Coincident", 1, 2, 2, 1))
sketch15.addConstraint(Sketcher.Constraint("Coincident", 2, 2, 3, 1))
sketch15.addConstraint(Sketcher.Constraint("Coincident", 3, 2, 0, 1))
sketch15.addConstraint(Sketcher.Constraint("Horizontal", 0))
sketch15.addConstraint(Sketcher.Constraint("Vertical", 1))
sketch15.addConstraint(Sketcher.Constraint("Horizontal", 2))
sketch15.addConstraint(Sketcher.Constraint("Vertical", 3))
sketch15.addConstraint(Sketcher.Constraint("DistanceX", 0, 2, 0, 1, 3.0))
sketch15.addConstraint(Sketcher.Constraint("DistanceX", 0, 2, -1, 1, 24.0))
sketch15.addConstraint(Sketcher.Constraint("DistanceY", 1, 1, 1, 2, 137.133519))
sketch15.addConstraint(Sketcher.Constraint("DistanceY", 0, 2, -1, 1, 94.206259))
pocket14 = body.newObject("PartDesign::Pocket", "Pocket013")
pocket14.Profile = sketch15
pocket14.Length = 15
pocket14.Reversed = True

sketch16 = body.newObject("Sketcher::SketchObject", "Sketch015")
sketch16.AttachmentSupport = (doc.getObject("YZ_Plane"), [""])
sketch16.MapMode = "FlatFace"
sketch16.AttachmentOffset = App.Placement(Vector(0, 0, -188.804427), App.Rotation())
sketch16.addGeometry(Part.LineSegment(Vector(-15, -94.2, 0), Vector(-18, -94.2, 0)), False)
sketch16.addGeometry(Part.LineSegment(Vector(-18, -94.2, 0), Vector(-18, 42.9, 0)), False)
sketch16.addGeometry(Part.LineSegment(Vector(-18, 42.9, 0), Vector(-15, 42.9, 0)), False)
sketch16.addGeometry(Part.LineSegment(Vector(-15, 42.9, 0), Vector(-15, -94.2, 0)), False)
sketch16.addConstraint(Sketcher.Constraint("Coincident", 0, 2, 1, 1))
sketch16.addConstraint(Sketcher.Constraint("Coincident", 1, 2, 2, 1))
sketch16.addConstraint(Sketcher.Constraint("Coincident", 2, 2, 3, 1))
sketch16.addConstraint(Sketcher.Constraint("Coincident", 3, 2, 0, 1))
sketch16.addConstraint(Sketcher.Constraint("Horizontal", 0))
sketch16.addConstraint(Sketcher.Constraint("Vertical", 1))
sketch16.addConstraint(Sketcher.Constraint("Horizontal", 2))
sketch16.addConstraint(Sketcher.Constraint("Vertical", 3))
sketch16.addConstraint(Sketcher.Constraint("DistanceX", 0, 2, 0, 1, 3.0))
sketch16.addConstraint(Sketcher.Constraint("DistanceX", 0, 2, -1, 1, 18.0))
sketch16.addConstraint(Sketcher.Constraint("DistanceY", 1, 1, 1, 2, 137.133519))
sketch16.addConstraint(Sketcher.Constraint("DistanceY", 0, 2, -1, 1, 94.206259))
pocket15 = body.newObject("PartDesign::Pocket", "Pocket014")
pocket15.Profile = sketch16
pocket15.Length = 15
pocket15.Reversed = True

sketch17 = body.newObject("Sketcher::SketchObject", "Sketch016")
sketch17.AttachmentSupport = (doc.getObject("YZ_Plane"), [""])
sketch17.MapMode = "FlatFace"
sketch17.AttachmentOffset = App.Placement(Vector(0, 0, -188.804427), App.Rotation())
sketch17.addGeometry(Part.LineSegment(Vector(-9, -94.2, 0), Vector(-12, -94.2, 0)), False)
sketch17.addGeometry(Part.LineSegment(Vector(-12, -94.2, 0), Vector(-12, 42.9, 0)), False)
sketch17.addGeometry(Part.LineSegment(Vector(-12, 42.9, 0), Vector(-9, 42.9, 0)), False)
sketch17.addGeometry(Part.LineSegment(Vector(-9, 42.9, 0), Vector(-9, -94.2, 0)), False)
sketch17.addConstraint(Sketcher.Constraint("Coincident", 0, 2, 1, 1))
sketch17.addConstraint(Sketcher.Constraint("Coincident", 1, 2, 2, 1))
sketch17.addConstraint(Sketcher.Constraint("Coincident", 2, 2, 3, 1))
sketch17.addConstraint(Sketcher.Constraint("Coincident", 3, 2, 0, 1))
sketch17.addConstraint(Sketcher.Constraint("Horizontal", 0))
sketch17.addConstraint(Sketcher.Constraint("Vertical", 1))
sketch17.addConstraint(Sketcher.Constraint("Horizontal", 2))
sketch17.addConstraint(Sketcher.Constraint("Vertical", 3))
sketch17.addConstraint(Sketcher.Constraint("DistanceX", 0, 2, 0, 1, 3.0))
sketch17.addConstraint(Sketcher.Constraint("DistanceX", 0, 2, -1, 1, 12.0))
sketch17.addConstraint(Sketcher.Constraint("DistanceY", 1, 1, 1, 2, 137.133519))
sketch17.addConstraint(Sketcher.Constraint("DistanceY", 0, 2, -1, 1, 94.206259))
pocket16 = body.newObject("PartDesign::Pocket", "Pocket015")
pocket16.Profile = sketch17
pocket16.Length = 15
pocket16.Reversed = True

sketch18 = body.newObject("Sketcher::SketchObject", "Sketch017")
sketch18.AttachmentSupport = (doc.getObject("YZ_Plane"), [""])
sketch18.MapMode = "FlatFace"
sketch18.AttachmentOffset = App.Placement(Vector(0, 0, -188.804427), App.Rotation())
sketch18.addGeometry(Part.LineSegment(Vector(-60, 70, 0), Vector(-60, 60, 0)), False)
sketch18.addGeometry(Part.LineSegment(Vector(-60, 60, 0), Vector(-83, 60, 0)), False)
sketch18.addGeometry(Part.LineSegment(Vector(-83, 60, 0), Vector(-83, 70, 0)), False)
sketch18.addGeometry(Part.LineSegment(Vector(-83, 70, 0), Vector(-60, 70, 0)), False)
sketch18.addConstraint(Sketcher.Constraint("Coincident", 0, 2, 1, 1))
sketch18.addConstraint(Sketcher.Constraint("Coincident", 1, 2, 2, 1))
sketch18.addConstraint(Sketcher.Constraint("Coincident", 2, 2, 3, 1))
sketch18.addConstraint(Sketcher.Constraint("Coincident", 3, 2, 0, 1))
sketch18.addConstraint(Sketcher.Constraint("Vertical", 0))
sketch18.addConstraint(Sketcher.Constraint("Horizontal", 1))
sketch18.addConstraint(Sketcher.Constraint("Vertical", 2))
sketch18.addConstraint(Sketcher.Constraint("Horizontal", 3))
sketch18.addConstraint(Sketcher.Constraint("DistanceX", 1, 2, 1, 1, 23.0))
sketch18.addConstraint(Sketcher.Constraint("DistanceY", 0, 2, 0, 1, 10.0))
sketch18.addConstraint(Sketcher.Constraint("DistanceX", 0, 2, -1, 1, 60.0))
sketch18.addConstraint(Sketcher.Constraint("DistanceY", -1, 1, 0, 2, 59.793741))
pad2 = body.newObject("PartDesign::Pad", "Pad001")
pad2.Profile = sketch18
pad2.Length = 0.2
pad2.Reversed = True

sketch19 = body.newObject("Sketcher::SketchObject", "Sketch018")
sketch19.AttachmentSupport = (doc.getObject("YZ_Plane"), [""])
sketch19.MapMode = "FlatFace"
sketch19.AttachmentOffset = App.Placement(Vector(0, 0, -188.804427), App.Rotation())
sketch19.addGeometry(Part.Circle(Vector(-40, 56.8, 0), Vector(0, 0, 1), 2.5), False)
sketch19.addConstraint(Sketcher.Constraint("Diameter", 0, 5.0))
sketch19.addConstraint(Sketcher.Constraint("DistanceX", 0, 3, -1, 1, 40.0))
sketch19.addConstraint(Sketcher.Constraint("DistanceY", -1, 1, 0, 3, 56.793741))
pocket17 = body.newObject("PartDesign::Pocket", "Pocket016")
pocket17.Profile = sketch19
pocket17.Length = 2
pocket17.Reversed = True

sketch20 = body.newObject("Sketcher::SketchObject", "Sketch019")
sketch20.AttachmentSupport = (doc.getObject("YZ_Plane"), [""])
sketch20.MapMode = "FlatFace"
sketch20.AttachmentOffset = App.Placement(Vector(0, 0, -188.804427), App.Rotation())
sketch20.addGeometry(Part.Circle(Vector(-40, 72.3, 0), Vector(0, 0, 1), 2.5), False)
sketch20.addConstraint(Sketcher.Constraint("Diameter", 0, 5.0))
sketch20.addConstraint(Sketcher.Constraint("DistanceX", 0, 3, -1, 1, 40.0))
sketch20.addConstraint(Sketcher.Constraint("DistanceY", -1, 1, 0, 3, 72.293741))
pocket18 = body.newObject("PartDesign::Pocket", "Pocket017")
pocket18.Profile = sketch20
pocket18.Length = 2
pocket18.Reversed = True

doc.recompute()
